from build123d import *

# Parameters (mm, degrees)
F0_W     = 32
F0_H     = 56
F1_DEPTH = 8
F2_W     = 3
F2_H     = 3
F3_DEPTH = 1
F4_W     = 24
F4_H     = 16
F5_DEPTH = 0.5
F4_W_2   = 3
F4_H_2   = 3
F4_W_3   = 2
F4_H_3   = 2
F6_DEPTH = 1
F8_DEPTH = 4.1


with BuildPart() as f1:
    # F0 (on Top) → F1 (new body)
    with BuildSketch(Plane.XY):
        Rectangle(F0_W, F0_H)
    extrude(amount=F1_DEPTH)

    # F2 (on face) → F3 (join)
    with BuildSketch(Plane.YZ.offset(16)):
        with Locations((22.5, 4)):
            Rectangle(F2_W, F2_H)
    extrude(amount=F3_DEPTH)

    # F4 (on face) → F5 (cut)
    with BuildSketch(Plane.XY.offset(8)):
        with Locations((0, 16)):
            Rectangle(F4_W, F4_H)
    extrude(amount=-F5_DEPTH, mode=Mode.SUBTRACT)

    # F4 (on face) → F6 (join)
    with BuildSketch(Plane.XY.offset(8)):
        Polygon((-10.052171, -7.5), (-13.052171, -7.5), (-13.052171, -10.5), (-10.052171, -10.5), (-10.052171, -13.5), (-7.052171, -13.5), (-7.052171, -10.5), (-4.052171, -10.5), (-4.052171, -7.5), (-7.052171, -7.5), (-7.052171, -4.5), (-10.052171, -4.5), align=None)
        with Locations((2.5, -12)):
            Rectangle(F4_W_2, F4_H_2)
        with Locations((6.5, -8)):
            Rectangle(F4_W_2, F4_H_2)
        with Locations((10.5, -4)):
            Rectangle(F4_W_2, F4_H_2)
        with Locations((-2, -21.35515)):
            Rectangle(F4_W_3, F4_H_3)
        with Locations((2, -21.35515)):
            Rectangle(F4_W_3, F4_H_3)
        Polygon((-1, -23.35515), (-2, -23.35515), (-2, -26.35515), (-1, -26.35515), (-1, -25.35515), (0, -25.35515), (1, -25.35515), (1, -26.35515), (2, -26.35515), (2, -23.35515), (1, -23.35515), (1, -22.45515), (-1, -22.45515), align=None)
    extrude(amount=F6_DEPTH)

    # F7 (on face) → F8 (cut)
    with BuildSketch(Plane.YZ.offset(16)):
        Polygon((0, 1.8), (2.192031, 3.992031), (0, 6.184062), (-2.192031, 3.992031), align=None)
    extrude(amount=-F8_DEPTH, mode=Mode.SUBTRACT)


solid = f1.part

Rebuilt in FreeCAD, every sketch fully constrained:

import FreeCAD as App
import Part
import Sketcher

doc = App.newDocument("Part")
body = doc.addObject("PartDesign::Body", "Body")

sketch1 = body.newObject("Sketcher::SketchObject", "Sketch")
sketch1.AttachmentSupport = (doc.getObject("XY_Plane"), [""])
sketch1.MapMode = "FlatFace"
sketch1.addGeometry([
    Part.LineSegment(App.Vector(-16, 28, 0), App.Vector(-16, -28, 0)),
    Part.LineSegment(App.Vector(-16, -28, 0), App.Vector(16, -28, 0)),
    Part.LineSegment(App.Vector(16, -28, 0), App.Vector(16, 28, 0)),
    Part.LineSegment(App.Vector(16, 28, 0), App.Vector(-16, 28, 0)),
], False)
sketch1.addConstraint([
    Sketcher.Constraint("Coincident", 0, 2, 1, 1),
    Sketcher.Constraint("Coincident", 1, 2, 2, 1),
    Sketcher.Constraint("Coincident", 2, 2, 3, 1),
    Sketcher.Constraint("Coincident", 3, 2, 0, 1),
    Sketcher.Constraint("Vertical", 0),
    Sketcher.Constraint("Horizontal", 1),
    Sketcher.Constraint("Vertical", 2),
    Sketcher.Constraint("Horizontal", 3),
    Sketcher.Constraint("Symmetric", 0, 2, 2, 2, -1, 1),
    Sketcher.Constraint("DistanceX", 1, 1, 1, 2, 32.0),
    Sketcher.Constraint("DistanceY", 0, 2, 0, 1, 56.0),
])
pad1 = body.newObject("PartDesign::Pad", "Pad")
pad1.Profile = sketch1
pad1.Length = 8

sketch2 = body.newObject("Sketcher::SketchObject", "Sketch001")
sketch2.AttachmentSupport = (doc.getObject("YZ_Plane"), [""])
sketch2.MapMode = "FlatFace"
sketch2.AttachmentOffset = App.Placement(App.Vector(0, 0, 16), App.Rotation())
sketch2.addGeometry([
    Part.LineSegment(App.Vector(21, 5.5, 0), App.Vector(21, 2.5, 0)),
    Part.LineSegment(App.Vector(21, 2.5, 0), App.Vector(24, 2.5, 0)),
    Part.LineSegment(App.Vector(24, 2.5, 0), App.Vector(24, 5.5, 0)),
    Part.LineSegment(App.Vector(24, 5.5, 0), App.Vector(21, 5.5, 0)),
], False)
sketch2.addConstraint([
    Sketcher.Constraint("Coincident", 0, 2, 1, 1),
    Sketcher.Constraint("Coincident", 1, 2, 2, 1),
    Sketcher.Constraint("Coincident", 2, 2, 3, 1),
    Sketcher.Constraint("Coincident", 3, 2, 0, 1),
    Sketcher.Constraint("Vertical", 0),
    Sketcher.Constraint("Horizontal", 1),
    Sketcher.Constraint("Vertical", 2),
    Sketcher.Constraint("Horizontal", 3),
    Sketcher.Constraint("Equal", 3, 0),
    Sketcher.Constraint("DistanceX", 1, 1, 1, 2, 3.0),
    Sketcher.Constraint("DistanceX", -1, 1, 0, 2, 21.0),
    Sketcher.Constraint("DistanceY", -1, 1, 0, 2, 2.5),
])
pad2 = body.newObject("PartDesign::Pad", "Pad001")
pad2.Profile = sketch2
pad2.Length = 1

sketch3 = body.newObject("Sketcher::SketchObject", "Sketch002")
sketch3.AttachmentSupport = (doc.getObject("XY_Plane"), [""])
sketch3.MapMode = "FlatFace"
sketch3.AttachmentOffset = App.Placement(App.Vector(0, 0, 8), App.Rotation())
sketch3.addGeometry([
    Part.LineSegment(App.Vector(-12, 24, 0), App.Vector(-12, 8, 0)),
    Part.LineSegment(App.Vector(-12, 8, 0), App.Vector(12, 8, 0)),
    Part.LineSegment(App.Vector(12, 8, 0), App.Vector(12, 24, 0)),
    Part.LineSegment(App.Vector(12, 24, 0), App.Vector(-12, 24, 0)),
], False)
sketch3.addConstraint([
    Sketcher.Constraint("Coincident", 0, 2, 1, 1),
    Sketcher.Constraint("Coincident", 1, 2, 2, 1),
    Sketcher.Constraint("Coincident", 2, 2, 3, 1),
    Sketcher.Constraint("Coincident", 3, 2, 0, 1),
    Sketcher.Constraint("Vertical", 0),
    Sketcher.Constraint("Horizontal", 1),
    Sketcher.Constraint("Vertical", 2),
    Sketcher.Constraint("Horizontal", 3),
    Sketcher.Constraint("DistanceX", 1, 1, 1, 2, 24.0),
    Sketcher.Constraint("DistanceY", 0, 2, 0, 1, 16.0),
    Sketcher.Constraint("DistanceX", 0, 2, -1, 1, 12.0),
    Sketcher.Constraint("DistanceY", -1, 1, 0, 2, 8.0),
])
pocket1 = body.newObject("PartDesign::Pocket", "Pocket")
pocket1.Profile = sketch3
pocket1.Length = 0.5

sketch4 = body.newObject("Sketcher::SketchObject", "Sketch003")
sketch4.AttachmentSupport = (doc.getObject("XY_Plane"), [""])
sketch4.MapMode = "FlatFace"
sketch4.AttachmentOffset = App.Placement(App.Vector(0, 0, 8), App.Rotation())
sketch4.addGeometry([
    Part.LineSegment(App.Vector(-10.1, -7.5, 0), App.Vector(-13.1, -7.5, 0)),
    Part.LineSegment(App.Vector(-13.1, -7.5, 0), App.Vector(-13.1, -10.5, 0)),
    Part.LineSegment(App.Vector(-13.1, -10.5, 0), App.Vector(-10.1, -10.5, 0)),
    Part.LineSegment(App.Vector(-10.1, -10.5, 0), App.Vector(-10.1, -13.5, 0)),
    Part.LineSegment(App.Vector(-10.1, -13.5, 0), App.Vector(-7.1, -13.5, 0)),
    Part.LineSegment(App.Vector(-7.1, -13.5, 0), App.Vector(-7.1, -10.5, 0)),
    Part.LineSegment(App.Vector(-7.1, -10.5, 0), App.Vector(-4.1, -10.5, 0)),
    Part.LineSegment(App.Vector(-4.1, -10.5, 0), App.Vector(-4.1, -7.5, 0)),
    Part.LineSegment(App.Vector(-4.1, -7.5, 0), App.Vector(-7.1, -7.5, 0)),
    Part.LineSegment(App.Vector(-7.1, -7.5, 0), App.Vector(-7.1, -4.5, 0)),
    Part.LineSegment(App.Vector(-7.1, -4.5, 0), App.Vector(-10.1, -4.5, 0)),
    Part.LineSegment(App.Vector(-10.1, -4.5, 0), App.Vector(-10.1, -7.5, 0)),
    Part.LineSegment(App.Vector(1, -10.5, 0), App.Vector(1, -13.5, 0)),
    Part.LineSegment(App.Vector(1, -13.5, 0), App.Vector(4, -13.5, 0)),
    Part.LineSegment(App.Vector(4, -13.5, 0), App.Vector(4, -10.5, 0)),
    Part.LineSegment(App.Vector(4, -10.5, 0), App.Vector(1, -10.5, 0)),
    Part.LineSegment(App.Vector(5, -6.5, 0), App.Vector(5, -9.5, 0)),
    Part.LineSegment(App.Vector(5, -9.5, 0), App.Vector(8, -9.5, 0)),
    Part.LineSegment(App.Vector(8, -9.5, 0), App.Vector(8, -6.5, 0)),
    Part.LineSegment(App.Vector(8, -6.5, 0), App.Vector(5, -6.5, 0)),
    Part.LineSegment(App.Vector(9, -2.5, 0), App.Vector(9, -5.5, 0)),
    Part.LineSegment(App.Vector(9, -5.5, 0), App.Vector(12, -5.5, 0)),
    Part.LineSegment(App.Vector(12, -5.5, 0), App.Vector(12, -2.5, 0)),
    Part.LineSegment(App.Vector(12, -2.5, 0), App.Vector(9, -2.5, 0)),
    Part.LineSegment(App.Vector(-3, -20.4, 0), App.Vector(-3, -22.4, 0)),
    Part.LineSegment(App.Vector(-3, -22.4, 0), App.Vector(-1, -22.4, 0)),
    Part.LineSegment(App.Vector(-1, -22.4, 0), App.Vector(-1, -20.4, 0)),
    Part.LineSegment(App.Vector(-1, -20.4, 0), App.Vector(-3, -20.4, 0)),
    Part.LineSegment(App.Vector(1, -20.4, 0), App.Vector(1, -22.4, 0)),
    Part.LineSegment(App.Vector(1, -22.4, 0), App.Vector(3, -22.4, 0)),
    Part.LineSegment(App.Vector(3, -22.4, 0), App.Vector(3, -20.4, 0)),
    Part.LineSegment(App.Vector(3, -20.4, 0), App.Vector(1, -20.4, 0)),
    Part.LineSegment(App.Vector(-1, -23.4, 0), App.Vector(-2, -23.4, 0)),
    Part.LineSegment(App.Vector(-2, -23.4, 0), App.Vector(-2, -26.4, 0)),
    Part.LineSegment(App.Vector(-2, -26.4, 0), App.Vector(-1, -26.4, 0)),
    Part.LineSegment(App.Vector(-1, -26.4, 0), App.Vector(-1, -25.4, 0)),
    Part.LineSegment(App.Vector(-1, -25.4, 0), App.Vector(1, -25.4, 0)),
    Part.LineSegment(App.Vector(1, -25.4, 0), App.Vector(1, -26.4, 0)),
    Part.LineSegment(App.Vector(1, -26.4, 0), App.Vector(2, -26.4, 0)),
    Part.LineSegment(App.Vector(2, -26.4, 0), App.Vector(2, -23.4, 0)),
    Part.LineSegment(App.Vector(2, -23.4, 0), App.Vector(1, -23.4, 0)),
    Part.LineSegment(App.Vector(1, -23.4, 0), App.Vector(1, -22.5, 0)),
    Part.LineSegment(App.Vector(1, -22.5, 0), App.Vector(-1, -22.5, 0)),
    Part.LineSegment(App.Vector(-1, -22.5, 0), App.Vector(-1, -23.4, 0)),
], False)
sketch4.addConstraint([
    Sketcher.Constraint("Coincident", 0, 2, 1, 1),
    Sketcher.Constraint("Coincident", 1, 2, 2, 1),
    Sketcher.Constraint("Coincident", 2, 2, 3, 1),
    Sketcher.Constraint("Coincident", 3, 2, 4, 1),
    Sketcher.Constraint("Coincident", 4, 2, 5, 1),
    Sketcher.Constraint("Coincident", 5, 2, 6, 1),
    Sketcher.Constraint("Coincident", 6, 2, 7, 1),
    Sketcher.Constraint("Coincident", 7, 2, 8, 1),
    Sketcher.Constraint("Coincident", 8, 2, 9, 1),
    Sketcher.Constraint("Coincident", 9, 2, 10, 1),
    Sketcher.Constraint("Coincident", 10, 2, 11, 1),
    Sketcher.Constraint("Coincident", 11, 2, 0, 1),
    Sketcher.Constraint("Coincident", 12, 2, 13, 1),
    Sketcher.Constraint("Coincident", 13, 2, 14, 1),
    Sketcher.Constraint("Coincident", 14, 2, 15, 1),
    Sketcher.Constraint("Coincident", 15, 2, 12, 1),
    Sketcher.Constraint("Coincident", 16, 2, 17, 1),
    Sketcher.Constraint("Coincident", 17, 2, 18, 1),
    Sketcher.Constraint("Coincident", 18, 2, 19, 1),
    Sketcher.Constraint("Coincident", 19, 2, 16, 1),
    Sketcher.Constraint("Coincident", 20, 2, 21, 1),
    Sketcher.Constraint("Coincident", 21, 2, 22, 1),
    Sketcher.Constraint("Coincident", 22, 2, 23, 1),
    Sketcher.Constraint("Coincident", 23, 2, 20, 1),
    Sketcher.Constraint("Coincident", 24, 2, 25, 1),
    Sketcher.Constraint("Coincident", 25, 2, 26, 1),
    Sketcher.Constraint("Coincident", 26, 2, 27, 1),
    Sketcher.Constraint("Coincident", 27, 2, 24, 1),
    Sketcher.Constraint("Coincident", 28, 2, 29, 1),
    Sketcher.Constraint("Coincident", 29, 2, 30, 1),
    Sketcher.Constraint("Coincident", 30, 2, 31, 1),
    Sketcher.Constraint("Coincident", 31, 2, 28, 1),
    Sketcher.Constraint("Coincident", 32, 2, 33, 1),
    Sketcher.Constraint("Coincident", 33, 2, 34, 1),
    Sketcher.Constraint("Coincident", 34, 2, 35, 1),
    Sketcher.Constraint("Coincident", 35, 2, 36, 1),
    Sketcher.Constraint("Coincident", 36, 2, 37, 1),
    Sketcher.Constraint("Coincident", 37, 2, 38, 1),
    Sketcher.Constraint("Coincident", 38, 2, 39, 1),
    Sketcher.Constraint("Coincident", 39, 2, 40, 1),
    Sketcher.Constraint("Coincident", 40, 2, 41, 1),
    Sketcher.Constraint("Coincident", 41, 2, 42, 1),
    Sketcher.Constraint("Coincident", 42, 2, 43, 1),
    Sketcher.Constraint("Coincident", 43, 2, 32, 1),
    Sketcher.Constraint("Horizontal", 0),
    Sketcher.Constraint("Vertical", 1),
    Sketcher.Constraint("Horizontal", 2),
    Sketcher.Constraint("Vertical", 3),
    Sketcher.Constraint("Horizontal", 4),
    Sketcher.Constraint("Vertical", 5),
    Sketcher.Constraint("Horizontal", 6),
    Sketcher.Constraint("Vertical", 7),
    Sketcher.Constraint("Horizontal", 8),
    Sketcher.Constraint("Vertical", 9),
    Sketcher.Constraint("Horizontal", 10),
    Sketcher.Constraint("Vertical", 11),
    Sketcher.Constraint("Vertical", 12),
    Sketcher.Constraint("Horizontal", 13),
    Sketcher.Constraint("Vertical", 14),
    Sketcher.Constraint("Horizontal", 15),
    Sketcher.Constraint("Vertical", 16),
    Sketcher.Constraint("Horizontal", 17),
    Sketcher.Constraint("Vertical", 18),
    Sketcher.Constraint("Horizontal", 19),
    Sketcher.Constraint("Vertical", 20),
    Sketcher.Constraint("Horizontal", 21),
    Sketcher.Constraint("Vertical", 22),
    Sketcher.Constraint("Horizontal", 23),
    Sketcher.Constraint("Vertical", 24),
    Sketcher.Constraint("Horizontal", 25),
    Sketcher.Constraint("Vertical", 26),
    Sketcher.Constraint("Horizontal", 27),
    Sketcher.Constraint("Vertical", 28),
    Sketcher.Constraint("Horizontal", 29),
    Sketcher.Constraint("Vertical", 30),
    Sketcher.Constraint("Horizontal", 31),
    Sketcher.Constraint("Horizontal", 32),
    Sketcher.Constraint("Vertical", 33),
    Sketcher.Constraint("Horizontal", 34),
    Sketcher.Constraint("Vertical", 35),
    Sketcher.Constraint("Horizontal", 36),
    Sketcher.Constraint("Vertical", 37),
    Sketcher.Constraint("Horizontal", 38),
    Sketcher.Constraint("Vertical", 39),
    Sketcher.Constraint("Horizontal", 40),
    Sketcher.Constraint("Vertical", 41),
    Sketcher.Constraint("Horizontal", 42),
    Sketcher.Constraint("Vertical", 43),
    Sketcher.Constraint("Symmetric", 25, 2, 28, 2, -2),
    Sketcher.Constraint("Symmetric", 27, 2, 30, 2, -2),
    Sketcher.Constraint("Symmetric", 34, 2, 37, 2, -2),
    Sketcher.Constraint("Symmetric", 32, 2, 39, 2, -2),
    Sketcher.Constraint("Horizontal", 2, 2, 5, 2),
    Sketcher.Constraint("Horizontal", 0, 2, 7, 2),
    Sketcher.Constraint("Horizontal", 4, 2, 12, 2),
    Sketcher.Constraint("Horizontal", 6, 2, 14, 2),
    Sketcher.Constraint("Vertical", 5, 2, 8, 2),
    Sketcher.Constraint("Vertical", 3, 2, 10, 2),
    Sketcher.Constraint("Vertical", 15, 2, 28, 2),
    Sketcher.Constraint("Vertical", 26, 2, 34, 2),
    Sketcher.Constraint("Vertical", 37, 2, 40, 2),
    Sketcher.Constraint("Vertical", 35, 2, 42, 2),
    Sketcher.Constraint("Equal", 2, 4),
    Sketcher.Constraint("Equal", 4, 6),
    Sketcher.Constraint("Equal", 10, 13),
    Sketcher.Constraint("Equal", 15, 17),
    Sketcher.Constraint("Equal", 19, 21),
    Sketcher.Constraint("Equal", 31, 36),
    Sketcher.Constraint("Equal", 23, 1),
    Sketcher.Constraint("Equal", 1, 3),
    Sketcher.Constraint("Equal", 7, 9),
    Sketcher.Constraint("Equal", 14, 16),
    Sketcher.Constraint("Equal", 18, 20),
    Sketcher.Constraint("Equal", 42, 24),
    Sketcher.Constraint("Equal", 22, 33),
    Sketcher.Constraint("Equal", 40, 35),
    Sketcher.Constraint("DistanceX", 0, 2, 0, 1, 3.0),
    Sketcher.Constraint("DistanceX", 25, 1, 25, 2, 2.0),
    Sketcher.Constraint("DistanceX", 32, 2, 32, 1, 1.0),
    Sketcher.Constraint("DistanceY", 41, 1, 41, 2, 0.9),
    Sketcher.Constraint("DistanceX", -1, 1, 16, 2, 5.0),
    Sketcher.Constraint("DistanceX", -1, 1, 20, 2, 9.0),
    Sketcher.Constraint("DistanceY", 14, 2, 16, 2, 1.0),
    Sketcher.Constraint("DistanceY", 18, 2, 20, 2, 1.0),
    Sketcher.Constraint("DistanceY", 32, 2, 24, 2, 1.0),
    Sketcher.Constraint("DistanceY", 0, 2, -1, 1, 7.5),
    Sketcher.Constraint("DistanceX", 0, 2, -1, 1, 13.052171),
    Sketcher.Constraint("DistanceY", 24, 2, -1, 1, 22.35515),
])
pad3 = body.newObject("PartDesign::Pad", "Pad002")
pad3.Profile = sketch4
pad3.Length = 1

sketch5 = body.newObject("Sketcher::SketchObject", "Sketch004")
sketch5.AttachmentSupport = (doc.getObject("YZ_Plane"), [""])
sketch5.MapMode = "FlatFace"
sketch5.AttachmentOffset = App.Placement(App.Vector(0, 0, 16), App.Rotation())
sketch5.addGeometry([
    Part.LineSegment(App.Vector(0, 1.8, 0), App.Vector(2.2, 4, 0)),
    Part.LineSegment(App.Vector(2.2, 4, 0), App.Vector(0, 6.2, 0)),
    Part.LineSegment(App.Vector(0, 6.2, 0), App.Vector(-2.2, 4, 0)),
    Part.LineSegment(App.Vector(-2.2, 4, 0), App.Vector(0, 1.8, 0)),
], False)
sketch5.addConstraint([
    Sketcher.Constraint("Coincident", 0, 2, 1, 1),
    Sketcher.Constraint("Coincident", 1, 2, 2, 1),
    Sketcher.Constraint("Coincident", 2, 2, 3, 1),
    Sketcher.Constraint("Coincident", 3, 2, 0, 1),
    Sketcher.Constraint("Symmetric", 0, 2, 2, 2, -2),
    Sketcher.Constraint("PointOnObject", 1, 2, -2),
    Sketcher.Constraint("PointOnObject", 3, 2, -2),
    Sketcher.Constraint("Perpendicular", 0, 1),
    Sketcher.Constraint("Perpendicular", 1, 2),
    Sketcher.Constraint("Distance", 0, 3.1),
    Sketcher.Constraint("DistanceY", -1, 1, 3, 2, 1.8),
])
pocket2 = body.newObject("PartDesign::Pocket", "Pocket001")
pocket2.Profile = sketch5
pocket2.Length = 4.1

doc.recompute()
